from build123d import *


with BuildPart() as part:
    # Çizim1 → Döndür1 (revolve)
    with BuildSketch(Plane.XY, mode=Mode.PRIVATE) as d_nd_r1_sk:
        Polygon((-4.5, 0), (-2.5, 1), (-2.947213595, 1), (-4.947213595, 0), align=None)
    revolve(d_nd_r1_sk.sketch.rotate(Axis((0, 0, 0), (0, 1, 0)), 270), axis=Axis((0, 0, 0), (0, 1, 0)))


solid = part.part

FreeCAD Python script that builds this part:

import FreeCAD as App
import Part
import Sketcher

V = App.Vector
Q = App.Units.Quantity

doc = App.newDocument("Part")
body = doc.addObject("PartDesign::Body", "Body")

sketch1 = body.newObject("Sketcher::SketchObject", "Sketch")
sketch1.AttachmentSupport = (doc.getObject("XY_Plane"), [""])
sketch1.MapMode = "FlatFace"
sketch1.addGeometry(Part.LineSegment(V(-4.5, 0, 0), V(-2.5, 1, 0)), False)
sketch1.addGeometry(Part.LineSegment(V(-2.5, 1, 0), V(-2.947214, 1, 0)), False)
sketch1.addGeometry(Part.LineSegment(V(-2.947214, 1, 0), V(-4.947214, 0, 0)), False)
sketch1.addGeometry(Part.LineSegment(V(-4.947214, 0, 0), V(-4.5, 0, 0)), False)
sketch1.addConstraint(Sketcher.Constraint("Coincident", 0, 2, 1, 1))
sketch1.addConstraint(Sketcher.Constraint("Coincident", 1, 2, 2, 1))
sketch1.addConstraint(Sketcher.Constraint("Coincident", 2, 2, 3, 1))
sketch1.addConstraint(Sketcher.Constraint("Coincident", 3, 2, 0, 1))
sketch1.addConstraint(Sketcher.Constraint("Horizontal", 1))
sketch1.addConstraint(Sketcher.Constraint("Horizontal", 3))
sketch1.addConstraint(Sketcher.Constraint("PointOnObject", 2, 2, -1))
sketch1.addConstraint(Sketcher.Constraint("Parallel", 0, 2))
sketch1.addConstraint(Sketcher.Constraint("DistanceY", -1, 1, 0, 2, Q("1 mm")))
sketch1.addConstraint(Sketcher.Constraint("DistanceX", 2, 2, 1, 2, Q("2 mm")))
sketch1.addConstraint(Sketcher.Constraint("DistanceX", 0, 2, -1, 1, Q("2.5 mm")))
sketch1.addConstraint(Sketcher.Constraint("DistanceX", 1, 2, 1, 1, Q("0.447214 mm")))
revolution = body.newObject("PartDesign::Revolution", "Revolution")
revolution.Profile = sketch1
revolution.ReferenceAxis = (sketch1, ["V_Axis"])
revolution.Angle = 360

doc.recompute()
